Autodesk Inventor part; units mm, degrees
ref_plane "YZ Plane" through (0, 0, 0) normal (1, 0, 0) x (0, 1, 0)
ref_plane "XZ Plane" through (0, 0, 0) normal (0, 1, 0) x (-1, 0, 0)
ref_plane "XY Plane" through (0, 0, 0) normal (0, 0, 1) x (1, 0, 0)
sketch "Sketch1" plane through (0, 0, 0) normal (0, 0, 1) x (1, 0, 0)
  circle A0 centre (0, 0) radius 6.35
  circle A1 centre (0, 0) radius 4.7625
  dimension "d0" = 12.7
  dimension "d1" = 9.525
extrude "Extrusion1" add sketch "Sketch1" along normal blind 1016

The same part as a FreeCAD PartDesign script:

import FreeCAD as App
import Part
import Sketcher
Q = App.Units.Quantity

doc = App.newDocument("Part")
body = doc.addObject("PartDesign::Body", "Body")

sketch1 = body.newObject("Sketcher::SketchObject", "Sketch")
sketch1.AttachmentSupport = (doc.getObject("XY_Plane"), [""])
sketch1.MapMode = "FlatFace"
sketch1.addGeometry([
    Part.Circle(App.Vector(0, 0, 0), App.Vector(0, 0, 1), 6.3),
    Part.Circle(App.Vector(0, 0, 0), App.Vector(0, 0, 1), 4.8),
], False)
sketch1.addConstraint([
    Sketcher.Constraint("Coincident", 0, 3, -1, 1),
    Sketcher.Constraint("Coincident", 1, 3, -1, 1),
    Sketcher.Constraint("Diameter", 0, Q("0.5 in")),
    Sketcher.Constraint("Diameter", 1, Q("0.375 in")),
])
pad1 = body.newObject("PartDesign::Pad", "Pad")
pad1.Profile = sketch1
pad1.Length = Q("40 in")

doc.recompute()
